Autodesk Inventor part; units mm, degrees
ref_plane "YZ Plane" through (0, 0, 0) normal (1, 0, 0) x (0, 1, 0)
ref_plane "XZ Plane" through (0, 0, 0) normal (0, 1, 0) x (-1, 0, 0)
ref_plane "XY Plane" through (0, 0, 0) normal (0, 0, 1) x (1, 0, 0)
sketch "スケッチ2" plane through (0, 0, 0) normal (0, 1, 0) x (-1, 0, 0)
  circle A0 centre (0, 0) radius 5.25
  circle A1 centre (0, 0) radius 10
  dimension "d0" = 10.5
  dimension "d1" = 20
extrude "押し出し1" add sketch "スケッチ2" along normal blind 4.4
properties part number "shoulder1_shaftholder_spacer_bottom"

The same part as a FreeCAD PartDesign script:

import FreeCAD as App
import Part
import Sketcher

V = App.Vector
Q = App.Units.Quantity

doc = App.newDocument("Part")
body = doc.addObject("PartDesign::Body", "Body")

# Sketch on XZ plane
sketch1 = body.newObject("Sketcher::SketchObject", "Sketch")
sketch1.AttachmentSupport = (doc.getObject("XZ_Plane"), [""])
sketch1.MapMode = "FlatFace"
sketch1.addGeometry([
    Part.Circle(V(0, 0, 0), V(0, 0, 1), 10),
    Part.Circle(V(0, 0, 0), V(0, 0, 1), 5),
], False)
sketch1.addConstraint([
    Sketcher.Constraint("Coincident", 0, 3, -1, 1),
    Sketcher.Constraint("Coincident", 1, 3, -1, 1),
    Sketcher.Constraint("Diameter", 0, Q("20 mm")),
    Sketcher.Constraint("Diameter", 1, Q("10.5 mm")),
])
pad1 = body.newObject("PartDesign::Pad", "Pad")
pad1.Profile = sketch1
pad1.Length = 4.4
pad1.Reversed = True

doc.recompute()
